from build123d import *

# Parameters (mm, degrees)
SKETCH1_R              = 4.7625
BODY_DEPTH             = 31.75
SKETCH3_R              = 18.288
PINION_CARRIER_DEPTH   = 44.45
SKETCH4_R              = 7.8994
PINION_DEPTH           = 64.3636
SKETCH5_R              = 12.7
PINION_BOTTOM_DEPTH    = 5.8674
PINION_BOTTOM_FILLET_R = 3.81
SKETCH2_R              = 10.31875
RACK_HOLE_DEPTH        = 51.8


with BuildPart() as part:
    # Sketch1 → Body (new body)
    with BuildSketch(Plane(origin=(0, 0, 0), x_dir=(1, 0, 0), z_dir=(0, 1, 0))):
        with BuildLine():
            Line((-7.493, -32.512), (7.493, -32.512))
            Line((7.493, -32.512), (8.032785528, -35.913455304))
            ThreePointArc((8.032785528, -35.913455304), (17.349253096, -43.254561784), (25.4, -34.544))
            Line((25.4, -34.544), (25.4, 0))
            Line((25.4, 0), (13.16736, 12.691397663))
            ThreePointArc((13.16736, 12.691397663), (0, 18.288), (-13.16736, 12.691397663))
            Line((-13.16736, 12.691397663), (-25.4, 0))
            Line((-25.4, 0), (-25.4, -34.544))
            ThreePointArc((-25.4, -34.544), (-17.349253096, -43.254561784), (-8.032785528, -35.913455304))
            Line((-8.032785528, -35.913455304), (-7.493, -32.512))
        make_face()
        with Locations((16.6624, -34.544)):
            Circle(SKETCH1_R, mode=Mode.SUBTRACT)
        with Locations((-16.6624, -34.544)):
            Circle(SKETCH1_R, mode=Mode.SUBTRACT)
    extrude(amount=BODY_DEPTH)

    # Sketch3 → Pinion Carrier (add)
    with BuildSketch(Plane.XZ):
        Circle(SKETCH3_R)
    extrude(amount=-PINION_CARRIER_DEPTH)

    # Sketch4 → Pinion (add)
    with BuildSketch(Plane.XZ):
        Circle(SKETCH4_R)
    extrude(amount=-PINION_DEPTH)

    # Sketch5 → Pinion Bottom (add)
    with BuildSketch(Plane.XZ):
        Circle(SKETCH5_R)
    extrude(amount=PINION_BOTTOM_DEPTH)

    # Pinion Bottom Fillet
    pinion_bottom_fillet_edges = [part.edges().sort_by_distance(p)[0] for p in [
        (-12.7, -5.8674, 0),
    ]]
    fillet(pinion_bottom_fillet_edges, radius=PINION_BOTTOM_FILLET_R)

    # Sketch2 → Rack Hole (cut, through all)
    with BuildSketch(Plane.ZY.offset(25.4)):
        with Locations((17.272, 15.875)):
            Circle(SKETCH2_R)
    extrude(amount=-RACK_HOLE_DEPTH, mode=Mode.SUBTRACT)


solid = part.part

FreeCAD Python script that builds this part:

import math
import FreeCAD as App
import Part
import Sketcher

V = App.Vector
Q = App.Units.Quantity


def edges_at(feature, points):
    """Names of the edges that pass closest to the given points."""
    edges = feature.Shape.Edges
    near = lambda p: min(range(len(edges)), key=lambda i: edges[i].distToShape(Part.Vertex(*p))[0])
    return sorted({f"Edge{near(p) + 1}" for p in points})

doc = App.newDocument("Part")
body = doc.addObject("PartDesign::Body", "Body")

# Sketch on XZ plane
sketch1 = doc.addObject("Sketcher::SketchObject", "Sketch")
body.addObject(sketch1)
sketch1.AttachmentSupport = (doc.XZ_Plane, [""])
sketch1.MapMode = "FlatFace"
sketch1.addGeometry(Part.LineSegment(V(-7.5, 32.5, 0), V(7.5, 32.5, 0)), False)
sketch1.addGeometry(Part.LineSegment(V(7.5, 32.5, 0), V(8, 35.9, 0)), False)
sketch1.addGeometry(Part.ArcOfCircle(Part.Circle(V(16.7, 34.5, 0), V(0, 0, 1), 8.7), math.radians(0), math.radians(171)), False)
sketch1.addGeometry(Part.LineSegment(V(25.4, 34.5, 0), V(25.4, 0, 0)), False)
sketch1.addGeometry(Part.LineSegment(V(25.4, 0, 0), V(13.2, -12.7, 0)), False)
sketch1.addGeometry(Part.ArcOfCircle(Part.Circle(V(0, 0, 0), V(0, 0, 1), 18.3), math.radians(-136), math.radians(-44)), False)
sketch1.addGeometry(Part.LineSegment(V(-13.2, -12.7, 0), V(-25.4, 0, 0)), False)
sketch1.addGeometry(Part.LineSegment(V(-25.4, 0, 0), V(-25.4, 34.5, 0)), False)
sketch1.addGeometry(Part.ArcOfCircle(Part.Circle(V(-16.7, 34.5, 0), V(0, 0, 1), 8.7), math.radians(9), math.radians(180)), False)
sketch1.addGeometry(Part.LineSegment(V(-8, 35.9, 0), V(-7.5, 32.5, 0)), False)
sketch1.addGeometry(Part.Circle(V(-16.7, 34.5, 0), V(0, 0, 1), 4.8), False)
sketch1.addGeometry(Part.Circle(V(16.7, 34.5, 0), V(0, 0, 1), 4.8), False)
sketch1.addConstraint(Sketcher.Constraint("Coincident", 0, 2, 1, 1))
sketch1.addConstraint(Sketcher.Constraint("Tangent", 1, 2, 2, 2))
sketch1.addConstraint(Sketcher.Constraint("Tangent", 2, 1, 3, 1))
sketch1.addConstraint(Sketcher.Constraint("Coincident", 3, 2, 4, 1))
sketch1.addConstraint(Sketcher.Constraint("Tangent", 4, 2, 5, 2))
sketch1.addConstraint(Sketcher.Constraint("Tangent", 5, 1, 6, 1))
sketch1.addConstraint(Sketcher.Constraint("Coincident", 6, 2, 7, 1))
sketch1.addConstraint(Sketcher.Constraint("Tangent", 7, 2, 8, 2))
sketch1.addConstraint(Sketcher.Constraint("Tangent", 8, 1, 9, 1))
sketch1.addConstraint(Sketcher.Constraint("Coincident", 9, 2, 0, 1))
sketch1.addConstraint(Sketcher.Constraint("Horizontal", 0))
sketch1.addConstraint(Sketcher.Constraint("Vertical", 3))
sketch1.addConstraint(Sketcher.Constraint("Vertical", 7))
sketch1.addConstraint(Sketcher.Constraint("Coincident", 5, 3, -1, 1))
sketch1.addConstraint(Sketcher.Constraint("Coincident", 10, 3, 8, 3))
sketch1.addConstraint(Sketcher.Constraint("Coincident", 11, 3, 2, 3))
sketch1.addConstraint(Sketcher.Constraint("Equal", 2, 8))
sketch1.addConstraint(Sketcher.Constraint("Equal", 10, 11))
sketch1.addConstraint(Sketcher.Constraint("Symmetric", 3, 2, 6, 2, -1, 1))
sketch1.addConstraint(Sketcher.Constraint("Symmetric", 1, 2, 8, 1, -2))
sketch1.addConstraint(Sketcher.Constraint("PointOnObject", 3, 2, -1))
sketch1.addConstraint(Sketcher.Constraint("Radius", 5, Q("0.72 in")))
sketch1.addConstraint(Sketcher.Constraint("Diameter", 10, Q("0.375 in")))
sketch1.addConstraint(Sketcher.Constraint("DistanceX", -1, 1, 2, 1, Q("1 in")))
sketch1.addConstraint(Sketcher.Constraint("Radius", 2, Q("0.344 in")))
sketch1.addConstraint(Sketcher.Constraint("DistanceX", 0, 1, 0, 2, Q("0.59 in")))
sketch1.addConstraint(Sketcher.Constraint("DistanceY", 3, 2, 3, 1, Q("1.36 in")))
sketch1.addConstraint(Sketcher.Constraint("DistanceY", -1, 1, 0, 2, Q("1.28 in")))
pad1 = doc.addObject("PartDesign::Pad", "Pad")
body.addObject(pad1)
pad1.Profile = sketch1
pad1.Length = Q("1.25 in")
pad1.Reversed = True

# Sketch on XZ plane
sketch2 = doc.addObject("Sketcher::SketchObject", "Sketch001")
body.addObject(sketch2)
sketch2.AttachmentSupport = (doc.XZ_Plane, [""])
sketch2.MapMode = "FlatFace"
sketch2.addGeometry(Part.Circle(V(0, 0, 0), V(0, 0, 1), 18), False)
sketch2.addConstraint(Sketcher.Constraint("Coincident", 0, 3, -1, 1))
sketch2.addConstraint(Sketcher.Constraint("Diameter", 0, Q("1.44 in")))
pad2 = doc.addObject("PartDesign::Pad", "Pad001")
body.addObject(pad2)
pad2.Profile = sketch2
pad2.Length = Q("1.75 in")
pad2.Reversed = True

# Sketch on XZ plane
sketch3 = doc.addObject("Sketcher::SketchObject", "Sketch002")
body.addObject(sketch3)
sketch3.AttachmentSupport = (doc.XZ_Plane, [""])
sketch3.MapMode = "FlatFace"
sketch3.addGeometry(Part.Circle(V(0, 0, 0), V(0, 0, 1), 8), False)
sketch3.addConstraint(Sketcher.Constraint("Coincident", 0, 3, -1, 1))
sketch3.addConstraint(Sketcher.Constraint("Diameter", 0, Q("0.622 in")))
pad3 = doc.addObject("PartDesign::Pad", "Pad002")
body.addObject(pad3)
pad3.Profile = sketch3
pad3.Length = Q("2.534 in")
pad3.Reversed = True

# Sketch on XZ plane
sketch4 = doc.addObject("Sketcher::SketchObject", "Sketch003")
body.addObject(sketch4)
sketch4.AttachmentSupport = (doc.XZ_Plane, [""])
sketch4.MapMode = "FlatFace"
sketch4.addGeometry(Part.Circle(V(0, 0, 0), V(0, 0, 1), 13), False)
sketch4.addConstraint(Sketcher.Constraint("Coincident", 0, 3, -1, 1))
sketch4.addConstraint(Sketcher.Constraint("Diameter", 0, Q("1 in")))
pad4 = doc.addObject("PartDesign::Pad", "Pad003")
body.addObject(pad4)
pad4.Profile = sketch4
pad4.Length = Q("0.231 in")
doc.recompute()

fillet = doc.addObject("PartDesign::Fillet", "Fillet")
body.addObject(fillet)
fillet.Base = (pad4, edges_at(pad4, [(-12.7, -5.867, 0)]))
fillet.Radius = Q("0.15 in")

# Sketch on YZ plane
sketch5 = doc.addObject("Sketcher::SketchObject", "Sketch004")
body.addObject(sketch5)
sketch5.AttachmentSupport = (doc.YZ_Plane, [""])
sketch5.MapMode = "FlatFace"
sketch5.AttachmentOffset = App.Placement(V(0, 0, -1 * 25.4), App.Rotation())
sketch5.addGeometry(Part.Circle(V(16, 17, 0), V(0, 0, 1), 10), False)
sketch5.addConstraint(Sketcher.Constraint("Diameter", 0, Q("0.8125 in")))
sketch5.addConstraint(Sketcher.Constraint("DistanceY", -1, 1, 0, 3, Q("0.68 in")))
sketch5.addConstraint(Sketcher.Constraint("DistanceX", -1, 1, 0, 3, Q("0.625 in")))
pocket1 = doc.addObject("PartDesign::Pocket", "Pocket")
body.addObject(pocket1)
pocket1.Profile = sketch5
pocket1.Type = "ThroughAll"
pocket1.Reversed = True

doc.recompute()
